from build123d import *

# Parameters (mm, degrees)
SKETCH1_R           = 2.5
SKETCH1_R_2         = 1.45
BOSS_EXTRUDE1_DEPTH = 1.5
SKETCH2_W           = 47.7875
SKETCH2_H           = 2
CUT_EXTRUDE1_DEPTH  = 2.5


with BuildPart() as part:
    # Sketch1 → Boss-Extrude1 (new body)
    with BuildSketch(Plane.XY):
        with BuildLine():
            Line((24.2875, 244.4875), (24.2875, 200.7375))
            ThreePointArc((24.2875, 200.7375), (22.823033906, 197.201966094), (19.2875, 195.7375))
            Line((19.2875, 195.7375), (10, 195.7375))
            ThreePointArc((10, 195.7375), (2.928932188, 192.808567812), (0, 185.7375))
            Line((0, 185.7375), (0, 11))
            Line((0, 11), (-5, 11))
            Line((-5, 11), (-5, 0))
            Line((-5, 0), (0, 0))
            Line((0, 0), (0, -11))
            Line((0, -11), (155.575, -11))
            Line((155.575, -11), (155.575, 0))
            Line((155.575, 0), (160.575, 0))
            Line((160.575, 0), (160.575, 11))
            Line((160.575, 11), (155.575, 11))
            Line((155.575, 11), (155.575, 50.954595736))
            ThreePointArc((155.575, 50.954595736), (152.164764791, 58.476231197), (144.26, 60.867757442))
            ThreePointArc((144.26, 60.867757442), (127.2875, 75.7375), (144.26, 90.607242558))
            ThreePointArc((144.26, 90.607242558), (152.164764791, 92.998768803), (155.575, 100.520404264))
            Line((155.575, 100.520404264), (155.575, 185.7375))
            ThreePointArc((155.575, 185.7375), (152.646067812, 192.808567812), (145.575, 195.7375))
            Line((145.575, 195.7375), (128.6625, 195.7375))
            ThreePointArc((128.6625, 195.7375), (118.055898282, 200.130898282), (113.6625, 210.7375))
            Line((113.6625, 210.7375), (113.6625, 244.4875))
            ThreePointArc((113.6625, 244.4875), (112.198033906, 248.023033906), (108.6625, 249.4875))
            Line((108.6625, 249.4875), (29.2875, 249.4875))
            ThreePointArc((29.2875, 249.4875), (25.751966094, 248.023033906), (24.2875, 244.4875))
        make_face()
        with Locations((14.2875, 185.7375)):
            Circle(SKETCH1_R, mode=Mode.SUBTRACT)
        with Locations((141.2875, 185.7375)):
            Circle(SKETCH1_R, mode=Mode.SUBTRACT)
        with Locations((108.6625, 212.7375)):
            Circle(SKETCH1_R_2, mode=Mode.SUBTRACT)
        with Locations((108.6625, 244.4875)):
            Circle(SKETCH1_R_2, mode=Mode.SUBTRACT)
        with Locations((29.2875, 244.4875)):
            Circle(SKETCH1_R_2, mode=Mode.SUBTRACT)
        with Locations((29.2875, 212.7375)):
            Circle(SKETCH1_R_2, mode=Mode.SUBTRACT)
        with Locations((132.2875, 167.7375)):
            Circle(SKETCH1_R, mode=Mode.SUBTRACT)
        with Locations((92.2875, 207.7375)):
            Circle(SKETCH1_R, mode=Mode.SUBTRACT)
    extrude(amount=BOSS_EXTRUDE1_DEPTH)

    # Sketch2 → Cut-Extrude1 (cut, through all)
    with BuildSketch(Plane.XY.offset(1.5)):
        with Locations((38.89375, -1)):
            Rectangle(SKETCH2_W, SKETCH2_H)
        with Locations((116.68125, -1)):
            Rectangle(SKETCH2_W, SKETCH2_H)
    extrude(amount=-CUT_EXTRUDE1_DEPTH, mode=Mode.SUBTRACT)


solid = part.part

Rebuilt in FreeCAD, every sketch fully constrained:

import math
import FreeCAD as App
import Part
import Sketcher

V = App.Vector

doc = App.newDocument("Part")
params = doc.addObject("Spreadsheet::Sheet", "Params")
for row, (alias, value) in enumerate([
    ("sketch1_diameter", "5 mm"),
    ("sketch1_radius", "5 mm"),
    ("sketch1_radius2", "10 mm"),
    ("sketch1_radius3", "15 mm"),
    ("sketch1_diameter2", "2.9 mm"),
    ("pad1_length", "1.5 mm"),
    ("sketch2_height", "2 mm"),
], start=1):
    params.set(f"A{row}", alias)
    params.set(f"B{row}", "=" + value)
    params.setAlias(f"B{row}", alias)

body = doc.addObject("PartDesign::Body", "Body")

sketch1 = body.newObject("Sketcher::SketchObject", "Sketch")
sketch1.AttachmentSupport = (doc.getObject("XY_Plane"), [""])
sketch1.MapMode = "FlatFace"
sketch1.addGeometry([
    Part.LineSegment(V(24.2875, 244.4875, 0), V(24.2875, 200.7375, 0)),
    Part.ArcOfCircle(Part.Circle(V(19.2875, 200.7375, 0), V(0, 0, 1), 5), math.radians(-90), math.radians(0)),
    Part.LineSegment(V(19.2875, 195.7375, 0), V(10, 195.7375, 0)),
    Part.ArcOfCircle(Part.Circle(V(10, 185.7375, 0), V(0, 0, 1), 10), math.radians(90), math.radians(180)),
    Part.LineSegment(V(0, 185.7375, 0), V(0, 11, 0)),
    Part.LineSegment(V(0, 11, 0), V(-5, 11, 0)),
    Part.LineSegment(V(-5, 11, 0), V(-5, 0, 0)),
    Part.LineSegment(V(-5, 0, 0), V(0, 0, 0)),
    Part.LineSegment(V(0, 0, 0), V(0, -11, 0)),
    Part.LineSegment(V(0, -11, 0), V(155.575, -11, 0)),
    Part.LineSegment(V(155.575, -11, 0), V(155.575, 0, 0)),
    Part.LineSegment(V(155.575, 0, 0), V(160.575, 0, 0)),
    Part.LineSegment(V(160.575, 0, 0), V(160.575, 11, 0)),
    Part.LineSegment(V(160.575, 11, 0), V(155.575, 11, 0)),
    Part.LineSegment(V(155.575, 11, 0), V(155.575, 50.954596, 0)),
    Part.ArcOfCircle(Part.Circle(V(145.575, 50.954596, 0), V(0, 0, 1), 10), math.radians(0), math.radians(97.55628)),
    Part.ArcOfCircle(Part.Circle(V(142.2875, 75.7375, 0), V(0, 0, 1), 15), math.radians(82.44372), math.radians(277.55628)),
    Part.ArcOfCircle(Part.Circle(V(145.575, 100.520404, 0), V(0, 0, 1), 10), math.radians(-97.55628), math.radians(0)),
    Part.LineSegment(V(155.575, 100.520404, 0), V(155.575, 185.7375, 0)),
    Part.ArcOfCircle(Part.Circle(V(145.575, 185.7375, 0), V(0, 0, 1), 10), math.radians(0), math.radians(90)),
    Part.LineSegment(V(145.575, 195.7375, 0), V(128.6625, 195.7375, 0)),
    Part.ArcOfCircle(Part.Circle(V(128.6625, 210.7375, 0), V(0, 0, 1), 15), math.radians(180), math.radians(270)),
    Part.LineSegment(V(113.6625, 210.7375, 0), V(113.6625, 244.4875, 0)),
    Part.ArcOfCircle(Part.Circle(V(108.6625, 244.4875, 0), V(0, 0, 1), 5), math.radians(0), math.radians(90)),
    Part.LineSegment(V(108.6625, 249.4875, 0), V(29.2875, 249.4875, 0)),
    Part.ArcOfCircle(Part.Circle(V(29.2875, 244.4875, 0), V(0, 0, 1), 5), math.radians(90), math.radians(180)),
    Part.Circle(V(14.2875, 185.7375, 0), V(0, 0, 1), 2.5),
    Part.Circle(V(132.2875, 167.7375, 0), V(0, 0, 1), 2.5),
    Part.Circle(V(141.2875, 185.7375, 0), V(0, 0, 1), 2.5),
    Part.Circle(V(29.2875, 212.7375, 0), V(0, 0, 1), 1.45),
    Part.Circle(V(29.2875, 244.4875, 0), V(0, 0, 1), 1.45),
    Part.Circle(V(92.2875, 207.7375, 0), V(0, 0, 1), 2.5),
    Part.Circle(V(108.6625, 212.7375, 0), V(0, 0, 1), 1.45),
    Part.Circle(V(108.6625, 244.4875, 0), V(0, 0, 1), 1.45),
], False)
sketch1.addConstraint([
    Sketcher.Constraint("Tangent", 0, 2, 1, 2),
    Sketcher.Constraint("Tangent", 1, 1, 2, 1),
    Sketcher.Constraint("Tangent", 2, 2, 3, 1),
    Sketcher.Constraint("Tangent", 3, 2, 4, 1),
    Sketcher.Constraint("Coincident", 4, 2, 5, 1),
    Sketcher.Constraint("Coincident", 5, 2, 6, 1),
    Sketcher.Constraint("Coincident", 6, 2, 7, 1),
    Sketcher.Constraint("Coincident", 7, 2, 8, 1),
    Sketcher.Constraint("Coincident", 8, 2, 9, 1),
    Sketcher.Constraint("Coincident", 9, 2, 10, 1),
    Sketcher.Constraint("Coincident", 10, 2, 11, 1),
    Sketcher.Constraint("Coincident", 11, 2, 12, 1),
    Sketcher.Constraint("Coincident", 12, 2, 13, 1),
    Sketcher.Constraint("Coincident", 13, 2, 14, 1),
    Sketcher.Constraint("Tangent", 14, 2, 15, 1),
    Sketcher.Constraint("Tangent", 15, 2, 16, 2),
    Sketcher.Constraint("Tangent", 16, 1, 17, 1),
    Sketcher.Constraint("Tangent", 17, 2, 18, 1),
    Sketcher.Constraint("Tangent", 18, 2, 19, 1),
    Sketcher.Constraint("Tangent", 19, 2, 20, 1),
    Sketcher.Constraint("Tangent", 20, 2, 21, 2),
    Sketcher.Constraint("Tangent", 21, 1, 22, 1),
    Sketcher.Constraint("Tangent", 22, 2, 23, 1),
    Sketcher.Constraint("Tangent", 23, 2, 24, 1),
    Sketcher.Constraint("Tangent", 24, 2, 25, 1),
    Sketcher.Constraint("Tangent", 25, 2, 0, 1),
    Sketcher.Constraint("Vertical", 0),
    Sketcher.Constraint("Horizontal", 2),
    Sketcher.Constraint("Vertical", 4),
    Sketcher.Constraint("Horizontal", 5),
    Sketcher.Constraint("Vertical", 6),
    Sketcher.Constraint("Horizontal", 7),
    Sketcher.Constraint("Vertical", 8),
    Sketcher.Constraint("Horizontal", 9),
    Sketcher.Constraint("Vertical", 10),
    Sketcher.Constraint("Horizontal", 11),
    Sketcher.Constraint("Vertical", 12),
    Sketcher.Constraint("Horizontal", 13),
    Sketcher.Constraint("Vertical", 14),
    Sketcher.Constraint("Vertical", 18),
    Sketcher.Constraint("Horizontal", 20),
    Sketcher.Constraint("Vertical", 22),
    Sketcher.Constraint("Horizontal", 24),
    Sketcher.Constraint("Coincident", 7, 2, -1, 1),
    Sketcher.Constraint("Coincident", 30, 3, 25, 3),
    Sketcher.Constraint("Coincident", 33, 3, 23, 3),
    Sketcher.Constraint("Equal", 3, 15),
    Sketcher.Constraint("Equal", 15, 17),
    Sketcher.Constraint("Equal", 17, 19),
    Sketcher.Constraint("Equal", 16, 21),
    Sketcher.Constraint("Equal", 1, 23),
    Sketcher.Constraint("Equal", 23, 25),
    Sketcher.Constraint("Equal", 26, 27),
    Sketcher.Constraint("Equal", 27, 28),
    Sketcher.Constraint("Equal", 29, 30),
    Sketcher.Constraint("Equal", 28, 31),
    Sketcher.Constraint("Equal", 30, 32),
    Sketcher.Constraint("Equal", 32, 33),
    Sketcher.Constraint("Symmetric", 4, 2, 8, 2, -1, 1),
    Sketcher.Constraint("Symmetric", 9, 2, 13, 2, -1),
    Sketcher.Constraint("PointOnObject", 10, 2, -1),
    Sketcher.Constraint("Horizontal", 3, 3, 19, 3),
    Sketcher.Constraint("Horizontal", 19, 3, 26, 3),
    Sketcher.Constraint("Horizontal", 26, 3, 28, 3),
    Sketcher.Constraint("Horizontal", 29, 3, 32, 3),
    Sketcher.Constraint("Vertical", 15, 3, 17, 3),
    Sketcher.Constraint("Vertical", 25, 3, 29, 3),
    Sketcher.Constraint("Vertical", 23, 3, 32, 3),
    Sketcher.Constraint("Equal", 7, 11),
    Sketcher.Constraint("Diameter", 26, 5.0),
    Sketcher.Constraint("Radius", 1, 5.0),
    Sketcher.Constraint("Radius", 3, 10.0),
    Sketcher.Constraint("Radius", 16, 15.0),
    Sketcher.Constraint("Diameter", 29, 2.9),
    Sketcher.Constraint("DistanceX", 5, 2, 5, 1, 5.0),
    Sketcher.Constraint("DistanceY", 6, 2, 6, 1, 11.0),
    Sketcher.Constraint("DistanceY", 16, 3, 3, 3, 110.0),
    Sketcher.Constraint("DistanceX", 1, 3, 16, 3, 123.0),
    Sketcher.Constraint("DistanceX", 26, 3, 1, 3, 5.0),
    Sketcher.Constraint("DistanceY", 27, 3, 19, 3, 18.0),
    Sketcher.Constraint("DistanceX", 27, 3, 16, 3, 10.0),
    Sketcher.Constraint("DistanceX", 27, 3, 28, 3, 9.0),
    Sketcher.Constraint("DistanceY", 1, 3, 29, 3, 12.0),
    Sketcher.Constraint("DistanceY", 31, 3, 21, 3, 3.0),
    Sketcher.Constraint("DistanceX", 31, 3, 28, 3, 49.0),
    Sketcher.Constraint("DistanceY", 0, 2, 0, 1, 43.75),
    Sketcher.Constraint("DistanceX", 9, 1, 9, 2, 155.575),
    Sketcher.Constraint("DistanceX", 24, 2, 24, 1, 79.375),
    Sketcher.Constraint("DistanceX", -1, 1, 15, 2, 144.26),
    Sketcher.Constraint("DistanceY", 4, 2, 4, 1, 174.7375),
])
sketch1.setExpression("Constraints[69]", "Params.sketch1_diameter")
sketch1.setExpression("Constraints[70]", "Params.sketch1_radius")
sketch1.setExpression("Constraints[71]", "Params.sketch1_radius2")
sketch1.setExpression("Constraints[72]", "Params.sketch1_radius3")
sketch1.setExpression("Constraints[73]", "Params.sketch1_diameter2")
pad1 = body.newObject("PartDesign::Pad", "Pad")
pad1.Profile = sketch1
pad1.setExpression("Length", "Params.pad1_length")

sketch2 = body.newObject("Sketcher::SketchObject", "Sketch001")
sketch2.AttachmentSupport = (doc.getObject("XY_Plane"), [""])
sketch2.MapMode = "FlatFace"
sketch2.AttachmentOffset = App.Placement(V(0, 0, 1.5), App.Rotation())
sketch2.addGeometry([
    Part.LineSegment(V(15, 0, 0), V(15, -2, 0)),
    Part.LineSegment(V(15, -2, 0), V(62.7875, -2, 0)),
    Part.LineSegment(V(62.7875, -2, 0), V(62.7875, 0, 0)),
    Part.LineSegment(V(62.7875, 0, 0), V(15, 0, 0)),
    Part.LineSegment(V(92.7875, 0, 0), V(92.7875, -2, 0)),
    Part.LineSegment(V(92.7875, -2, 0), V(140.575, -2, 0)),
    Part.LineSegment(V(140.575, -2, 0), V(140.575, 0, 0)),
    Part.LineSegment(V(140.575, 0, 0), V(92.7875, 0, 0)),
], False)
sketch2.addConstraint([
    Sketcher.Constraint("Coincident", 0, 2, 1, 1),
    Sketcher.Constraint("Coincident", 1, 2, 2, 1),
    Sketcher.Constraint("Coincident", 2, 2, 3, 1),
    Sketcher.Constraint("Coincident", 3, 2, 0, 1),
    Sketcher.Constraint("Coincident", 4, 2, 5, 1),
    Sketcher.Constraint("Coincident", 5, 2, 6, 1),
    Sketcher.Constraint("Coincident", 6, 2, 7, 1),
    Sketcher.Constraint("Coincident", 7, 2, 4, 1),
    Sketcher.Constraint("Vertical", 0),
    Sketcher.Constraint("Horizontal", 1),
    Sketcher.Constraint("Vertical", 2),
    Sketcher.Constraint("Horizontal", 3),
    Sketcher.Constraint("Vertical", 4),
    Sketcher.Constraint("Horizontal", 5),
    Sketcher.Constraint("Vertical", 6),
    Sketcher.Constraint("Horizontal", 7),
    Sketcher.Constraint("PointOnObject", 2, 2, -1),
    Sketcher.Constraint("PointOnObject", 6, 2, -1),
    Sketcher.Constraint("Horizontal", 1, 2, 4, 2),
    Sketcher.Constraint("Equal", 3, 5),
    Sketcher.Constraint("DistanceY", 0, 2, 0, 1, 2.0),
    Sketcher.Constraint("DistanceX", -1, 1, 0, 2, 15.0),
    Sketcher.Constraint("DistanceX", 1, 2, 4, 2, 30.0),
    Sketcher.Constraint("DistanceX", 1, 1, 1, 2, 47.7875),
])
sketch2.setExpression("Constraints[20]", "Params.sketch2_height")
pocket1 = body.newObject("PartDesign::Pocket", "Pocket")
pocket1.Profile = sketch2
pocket1.Type = "ThroughAll"

doc.recompute()
